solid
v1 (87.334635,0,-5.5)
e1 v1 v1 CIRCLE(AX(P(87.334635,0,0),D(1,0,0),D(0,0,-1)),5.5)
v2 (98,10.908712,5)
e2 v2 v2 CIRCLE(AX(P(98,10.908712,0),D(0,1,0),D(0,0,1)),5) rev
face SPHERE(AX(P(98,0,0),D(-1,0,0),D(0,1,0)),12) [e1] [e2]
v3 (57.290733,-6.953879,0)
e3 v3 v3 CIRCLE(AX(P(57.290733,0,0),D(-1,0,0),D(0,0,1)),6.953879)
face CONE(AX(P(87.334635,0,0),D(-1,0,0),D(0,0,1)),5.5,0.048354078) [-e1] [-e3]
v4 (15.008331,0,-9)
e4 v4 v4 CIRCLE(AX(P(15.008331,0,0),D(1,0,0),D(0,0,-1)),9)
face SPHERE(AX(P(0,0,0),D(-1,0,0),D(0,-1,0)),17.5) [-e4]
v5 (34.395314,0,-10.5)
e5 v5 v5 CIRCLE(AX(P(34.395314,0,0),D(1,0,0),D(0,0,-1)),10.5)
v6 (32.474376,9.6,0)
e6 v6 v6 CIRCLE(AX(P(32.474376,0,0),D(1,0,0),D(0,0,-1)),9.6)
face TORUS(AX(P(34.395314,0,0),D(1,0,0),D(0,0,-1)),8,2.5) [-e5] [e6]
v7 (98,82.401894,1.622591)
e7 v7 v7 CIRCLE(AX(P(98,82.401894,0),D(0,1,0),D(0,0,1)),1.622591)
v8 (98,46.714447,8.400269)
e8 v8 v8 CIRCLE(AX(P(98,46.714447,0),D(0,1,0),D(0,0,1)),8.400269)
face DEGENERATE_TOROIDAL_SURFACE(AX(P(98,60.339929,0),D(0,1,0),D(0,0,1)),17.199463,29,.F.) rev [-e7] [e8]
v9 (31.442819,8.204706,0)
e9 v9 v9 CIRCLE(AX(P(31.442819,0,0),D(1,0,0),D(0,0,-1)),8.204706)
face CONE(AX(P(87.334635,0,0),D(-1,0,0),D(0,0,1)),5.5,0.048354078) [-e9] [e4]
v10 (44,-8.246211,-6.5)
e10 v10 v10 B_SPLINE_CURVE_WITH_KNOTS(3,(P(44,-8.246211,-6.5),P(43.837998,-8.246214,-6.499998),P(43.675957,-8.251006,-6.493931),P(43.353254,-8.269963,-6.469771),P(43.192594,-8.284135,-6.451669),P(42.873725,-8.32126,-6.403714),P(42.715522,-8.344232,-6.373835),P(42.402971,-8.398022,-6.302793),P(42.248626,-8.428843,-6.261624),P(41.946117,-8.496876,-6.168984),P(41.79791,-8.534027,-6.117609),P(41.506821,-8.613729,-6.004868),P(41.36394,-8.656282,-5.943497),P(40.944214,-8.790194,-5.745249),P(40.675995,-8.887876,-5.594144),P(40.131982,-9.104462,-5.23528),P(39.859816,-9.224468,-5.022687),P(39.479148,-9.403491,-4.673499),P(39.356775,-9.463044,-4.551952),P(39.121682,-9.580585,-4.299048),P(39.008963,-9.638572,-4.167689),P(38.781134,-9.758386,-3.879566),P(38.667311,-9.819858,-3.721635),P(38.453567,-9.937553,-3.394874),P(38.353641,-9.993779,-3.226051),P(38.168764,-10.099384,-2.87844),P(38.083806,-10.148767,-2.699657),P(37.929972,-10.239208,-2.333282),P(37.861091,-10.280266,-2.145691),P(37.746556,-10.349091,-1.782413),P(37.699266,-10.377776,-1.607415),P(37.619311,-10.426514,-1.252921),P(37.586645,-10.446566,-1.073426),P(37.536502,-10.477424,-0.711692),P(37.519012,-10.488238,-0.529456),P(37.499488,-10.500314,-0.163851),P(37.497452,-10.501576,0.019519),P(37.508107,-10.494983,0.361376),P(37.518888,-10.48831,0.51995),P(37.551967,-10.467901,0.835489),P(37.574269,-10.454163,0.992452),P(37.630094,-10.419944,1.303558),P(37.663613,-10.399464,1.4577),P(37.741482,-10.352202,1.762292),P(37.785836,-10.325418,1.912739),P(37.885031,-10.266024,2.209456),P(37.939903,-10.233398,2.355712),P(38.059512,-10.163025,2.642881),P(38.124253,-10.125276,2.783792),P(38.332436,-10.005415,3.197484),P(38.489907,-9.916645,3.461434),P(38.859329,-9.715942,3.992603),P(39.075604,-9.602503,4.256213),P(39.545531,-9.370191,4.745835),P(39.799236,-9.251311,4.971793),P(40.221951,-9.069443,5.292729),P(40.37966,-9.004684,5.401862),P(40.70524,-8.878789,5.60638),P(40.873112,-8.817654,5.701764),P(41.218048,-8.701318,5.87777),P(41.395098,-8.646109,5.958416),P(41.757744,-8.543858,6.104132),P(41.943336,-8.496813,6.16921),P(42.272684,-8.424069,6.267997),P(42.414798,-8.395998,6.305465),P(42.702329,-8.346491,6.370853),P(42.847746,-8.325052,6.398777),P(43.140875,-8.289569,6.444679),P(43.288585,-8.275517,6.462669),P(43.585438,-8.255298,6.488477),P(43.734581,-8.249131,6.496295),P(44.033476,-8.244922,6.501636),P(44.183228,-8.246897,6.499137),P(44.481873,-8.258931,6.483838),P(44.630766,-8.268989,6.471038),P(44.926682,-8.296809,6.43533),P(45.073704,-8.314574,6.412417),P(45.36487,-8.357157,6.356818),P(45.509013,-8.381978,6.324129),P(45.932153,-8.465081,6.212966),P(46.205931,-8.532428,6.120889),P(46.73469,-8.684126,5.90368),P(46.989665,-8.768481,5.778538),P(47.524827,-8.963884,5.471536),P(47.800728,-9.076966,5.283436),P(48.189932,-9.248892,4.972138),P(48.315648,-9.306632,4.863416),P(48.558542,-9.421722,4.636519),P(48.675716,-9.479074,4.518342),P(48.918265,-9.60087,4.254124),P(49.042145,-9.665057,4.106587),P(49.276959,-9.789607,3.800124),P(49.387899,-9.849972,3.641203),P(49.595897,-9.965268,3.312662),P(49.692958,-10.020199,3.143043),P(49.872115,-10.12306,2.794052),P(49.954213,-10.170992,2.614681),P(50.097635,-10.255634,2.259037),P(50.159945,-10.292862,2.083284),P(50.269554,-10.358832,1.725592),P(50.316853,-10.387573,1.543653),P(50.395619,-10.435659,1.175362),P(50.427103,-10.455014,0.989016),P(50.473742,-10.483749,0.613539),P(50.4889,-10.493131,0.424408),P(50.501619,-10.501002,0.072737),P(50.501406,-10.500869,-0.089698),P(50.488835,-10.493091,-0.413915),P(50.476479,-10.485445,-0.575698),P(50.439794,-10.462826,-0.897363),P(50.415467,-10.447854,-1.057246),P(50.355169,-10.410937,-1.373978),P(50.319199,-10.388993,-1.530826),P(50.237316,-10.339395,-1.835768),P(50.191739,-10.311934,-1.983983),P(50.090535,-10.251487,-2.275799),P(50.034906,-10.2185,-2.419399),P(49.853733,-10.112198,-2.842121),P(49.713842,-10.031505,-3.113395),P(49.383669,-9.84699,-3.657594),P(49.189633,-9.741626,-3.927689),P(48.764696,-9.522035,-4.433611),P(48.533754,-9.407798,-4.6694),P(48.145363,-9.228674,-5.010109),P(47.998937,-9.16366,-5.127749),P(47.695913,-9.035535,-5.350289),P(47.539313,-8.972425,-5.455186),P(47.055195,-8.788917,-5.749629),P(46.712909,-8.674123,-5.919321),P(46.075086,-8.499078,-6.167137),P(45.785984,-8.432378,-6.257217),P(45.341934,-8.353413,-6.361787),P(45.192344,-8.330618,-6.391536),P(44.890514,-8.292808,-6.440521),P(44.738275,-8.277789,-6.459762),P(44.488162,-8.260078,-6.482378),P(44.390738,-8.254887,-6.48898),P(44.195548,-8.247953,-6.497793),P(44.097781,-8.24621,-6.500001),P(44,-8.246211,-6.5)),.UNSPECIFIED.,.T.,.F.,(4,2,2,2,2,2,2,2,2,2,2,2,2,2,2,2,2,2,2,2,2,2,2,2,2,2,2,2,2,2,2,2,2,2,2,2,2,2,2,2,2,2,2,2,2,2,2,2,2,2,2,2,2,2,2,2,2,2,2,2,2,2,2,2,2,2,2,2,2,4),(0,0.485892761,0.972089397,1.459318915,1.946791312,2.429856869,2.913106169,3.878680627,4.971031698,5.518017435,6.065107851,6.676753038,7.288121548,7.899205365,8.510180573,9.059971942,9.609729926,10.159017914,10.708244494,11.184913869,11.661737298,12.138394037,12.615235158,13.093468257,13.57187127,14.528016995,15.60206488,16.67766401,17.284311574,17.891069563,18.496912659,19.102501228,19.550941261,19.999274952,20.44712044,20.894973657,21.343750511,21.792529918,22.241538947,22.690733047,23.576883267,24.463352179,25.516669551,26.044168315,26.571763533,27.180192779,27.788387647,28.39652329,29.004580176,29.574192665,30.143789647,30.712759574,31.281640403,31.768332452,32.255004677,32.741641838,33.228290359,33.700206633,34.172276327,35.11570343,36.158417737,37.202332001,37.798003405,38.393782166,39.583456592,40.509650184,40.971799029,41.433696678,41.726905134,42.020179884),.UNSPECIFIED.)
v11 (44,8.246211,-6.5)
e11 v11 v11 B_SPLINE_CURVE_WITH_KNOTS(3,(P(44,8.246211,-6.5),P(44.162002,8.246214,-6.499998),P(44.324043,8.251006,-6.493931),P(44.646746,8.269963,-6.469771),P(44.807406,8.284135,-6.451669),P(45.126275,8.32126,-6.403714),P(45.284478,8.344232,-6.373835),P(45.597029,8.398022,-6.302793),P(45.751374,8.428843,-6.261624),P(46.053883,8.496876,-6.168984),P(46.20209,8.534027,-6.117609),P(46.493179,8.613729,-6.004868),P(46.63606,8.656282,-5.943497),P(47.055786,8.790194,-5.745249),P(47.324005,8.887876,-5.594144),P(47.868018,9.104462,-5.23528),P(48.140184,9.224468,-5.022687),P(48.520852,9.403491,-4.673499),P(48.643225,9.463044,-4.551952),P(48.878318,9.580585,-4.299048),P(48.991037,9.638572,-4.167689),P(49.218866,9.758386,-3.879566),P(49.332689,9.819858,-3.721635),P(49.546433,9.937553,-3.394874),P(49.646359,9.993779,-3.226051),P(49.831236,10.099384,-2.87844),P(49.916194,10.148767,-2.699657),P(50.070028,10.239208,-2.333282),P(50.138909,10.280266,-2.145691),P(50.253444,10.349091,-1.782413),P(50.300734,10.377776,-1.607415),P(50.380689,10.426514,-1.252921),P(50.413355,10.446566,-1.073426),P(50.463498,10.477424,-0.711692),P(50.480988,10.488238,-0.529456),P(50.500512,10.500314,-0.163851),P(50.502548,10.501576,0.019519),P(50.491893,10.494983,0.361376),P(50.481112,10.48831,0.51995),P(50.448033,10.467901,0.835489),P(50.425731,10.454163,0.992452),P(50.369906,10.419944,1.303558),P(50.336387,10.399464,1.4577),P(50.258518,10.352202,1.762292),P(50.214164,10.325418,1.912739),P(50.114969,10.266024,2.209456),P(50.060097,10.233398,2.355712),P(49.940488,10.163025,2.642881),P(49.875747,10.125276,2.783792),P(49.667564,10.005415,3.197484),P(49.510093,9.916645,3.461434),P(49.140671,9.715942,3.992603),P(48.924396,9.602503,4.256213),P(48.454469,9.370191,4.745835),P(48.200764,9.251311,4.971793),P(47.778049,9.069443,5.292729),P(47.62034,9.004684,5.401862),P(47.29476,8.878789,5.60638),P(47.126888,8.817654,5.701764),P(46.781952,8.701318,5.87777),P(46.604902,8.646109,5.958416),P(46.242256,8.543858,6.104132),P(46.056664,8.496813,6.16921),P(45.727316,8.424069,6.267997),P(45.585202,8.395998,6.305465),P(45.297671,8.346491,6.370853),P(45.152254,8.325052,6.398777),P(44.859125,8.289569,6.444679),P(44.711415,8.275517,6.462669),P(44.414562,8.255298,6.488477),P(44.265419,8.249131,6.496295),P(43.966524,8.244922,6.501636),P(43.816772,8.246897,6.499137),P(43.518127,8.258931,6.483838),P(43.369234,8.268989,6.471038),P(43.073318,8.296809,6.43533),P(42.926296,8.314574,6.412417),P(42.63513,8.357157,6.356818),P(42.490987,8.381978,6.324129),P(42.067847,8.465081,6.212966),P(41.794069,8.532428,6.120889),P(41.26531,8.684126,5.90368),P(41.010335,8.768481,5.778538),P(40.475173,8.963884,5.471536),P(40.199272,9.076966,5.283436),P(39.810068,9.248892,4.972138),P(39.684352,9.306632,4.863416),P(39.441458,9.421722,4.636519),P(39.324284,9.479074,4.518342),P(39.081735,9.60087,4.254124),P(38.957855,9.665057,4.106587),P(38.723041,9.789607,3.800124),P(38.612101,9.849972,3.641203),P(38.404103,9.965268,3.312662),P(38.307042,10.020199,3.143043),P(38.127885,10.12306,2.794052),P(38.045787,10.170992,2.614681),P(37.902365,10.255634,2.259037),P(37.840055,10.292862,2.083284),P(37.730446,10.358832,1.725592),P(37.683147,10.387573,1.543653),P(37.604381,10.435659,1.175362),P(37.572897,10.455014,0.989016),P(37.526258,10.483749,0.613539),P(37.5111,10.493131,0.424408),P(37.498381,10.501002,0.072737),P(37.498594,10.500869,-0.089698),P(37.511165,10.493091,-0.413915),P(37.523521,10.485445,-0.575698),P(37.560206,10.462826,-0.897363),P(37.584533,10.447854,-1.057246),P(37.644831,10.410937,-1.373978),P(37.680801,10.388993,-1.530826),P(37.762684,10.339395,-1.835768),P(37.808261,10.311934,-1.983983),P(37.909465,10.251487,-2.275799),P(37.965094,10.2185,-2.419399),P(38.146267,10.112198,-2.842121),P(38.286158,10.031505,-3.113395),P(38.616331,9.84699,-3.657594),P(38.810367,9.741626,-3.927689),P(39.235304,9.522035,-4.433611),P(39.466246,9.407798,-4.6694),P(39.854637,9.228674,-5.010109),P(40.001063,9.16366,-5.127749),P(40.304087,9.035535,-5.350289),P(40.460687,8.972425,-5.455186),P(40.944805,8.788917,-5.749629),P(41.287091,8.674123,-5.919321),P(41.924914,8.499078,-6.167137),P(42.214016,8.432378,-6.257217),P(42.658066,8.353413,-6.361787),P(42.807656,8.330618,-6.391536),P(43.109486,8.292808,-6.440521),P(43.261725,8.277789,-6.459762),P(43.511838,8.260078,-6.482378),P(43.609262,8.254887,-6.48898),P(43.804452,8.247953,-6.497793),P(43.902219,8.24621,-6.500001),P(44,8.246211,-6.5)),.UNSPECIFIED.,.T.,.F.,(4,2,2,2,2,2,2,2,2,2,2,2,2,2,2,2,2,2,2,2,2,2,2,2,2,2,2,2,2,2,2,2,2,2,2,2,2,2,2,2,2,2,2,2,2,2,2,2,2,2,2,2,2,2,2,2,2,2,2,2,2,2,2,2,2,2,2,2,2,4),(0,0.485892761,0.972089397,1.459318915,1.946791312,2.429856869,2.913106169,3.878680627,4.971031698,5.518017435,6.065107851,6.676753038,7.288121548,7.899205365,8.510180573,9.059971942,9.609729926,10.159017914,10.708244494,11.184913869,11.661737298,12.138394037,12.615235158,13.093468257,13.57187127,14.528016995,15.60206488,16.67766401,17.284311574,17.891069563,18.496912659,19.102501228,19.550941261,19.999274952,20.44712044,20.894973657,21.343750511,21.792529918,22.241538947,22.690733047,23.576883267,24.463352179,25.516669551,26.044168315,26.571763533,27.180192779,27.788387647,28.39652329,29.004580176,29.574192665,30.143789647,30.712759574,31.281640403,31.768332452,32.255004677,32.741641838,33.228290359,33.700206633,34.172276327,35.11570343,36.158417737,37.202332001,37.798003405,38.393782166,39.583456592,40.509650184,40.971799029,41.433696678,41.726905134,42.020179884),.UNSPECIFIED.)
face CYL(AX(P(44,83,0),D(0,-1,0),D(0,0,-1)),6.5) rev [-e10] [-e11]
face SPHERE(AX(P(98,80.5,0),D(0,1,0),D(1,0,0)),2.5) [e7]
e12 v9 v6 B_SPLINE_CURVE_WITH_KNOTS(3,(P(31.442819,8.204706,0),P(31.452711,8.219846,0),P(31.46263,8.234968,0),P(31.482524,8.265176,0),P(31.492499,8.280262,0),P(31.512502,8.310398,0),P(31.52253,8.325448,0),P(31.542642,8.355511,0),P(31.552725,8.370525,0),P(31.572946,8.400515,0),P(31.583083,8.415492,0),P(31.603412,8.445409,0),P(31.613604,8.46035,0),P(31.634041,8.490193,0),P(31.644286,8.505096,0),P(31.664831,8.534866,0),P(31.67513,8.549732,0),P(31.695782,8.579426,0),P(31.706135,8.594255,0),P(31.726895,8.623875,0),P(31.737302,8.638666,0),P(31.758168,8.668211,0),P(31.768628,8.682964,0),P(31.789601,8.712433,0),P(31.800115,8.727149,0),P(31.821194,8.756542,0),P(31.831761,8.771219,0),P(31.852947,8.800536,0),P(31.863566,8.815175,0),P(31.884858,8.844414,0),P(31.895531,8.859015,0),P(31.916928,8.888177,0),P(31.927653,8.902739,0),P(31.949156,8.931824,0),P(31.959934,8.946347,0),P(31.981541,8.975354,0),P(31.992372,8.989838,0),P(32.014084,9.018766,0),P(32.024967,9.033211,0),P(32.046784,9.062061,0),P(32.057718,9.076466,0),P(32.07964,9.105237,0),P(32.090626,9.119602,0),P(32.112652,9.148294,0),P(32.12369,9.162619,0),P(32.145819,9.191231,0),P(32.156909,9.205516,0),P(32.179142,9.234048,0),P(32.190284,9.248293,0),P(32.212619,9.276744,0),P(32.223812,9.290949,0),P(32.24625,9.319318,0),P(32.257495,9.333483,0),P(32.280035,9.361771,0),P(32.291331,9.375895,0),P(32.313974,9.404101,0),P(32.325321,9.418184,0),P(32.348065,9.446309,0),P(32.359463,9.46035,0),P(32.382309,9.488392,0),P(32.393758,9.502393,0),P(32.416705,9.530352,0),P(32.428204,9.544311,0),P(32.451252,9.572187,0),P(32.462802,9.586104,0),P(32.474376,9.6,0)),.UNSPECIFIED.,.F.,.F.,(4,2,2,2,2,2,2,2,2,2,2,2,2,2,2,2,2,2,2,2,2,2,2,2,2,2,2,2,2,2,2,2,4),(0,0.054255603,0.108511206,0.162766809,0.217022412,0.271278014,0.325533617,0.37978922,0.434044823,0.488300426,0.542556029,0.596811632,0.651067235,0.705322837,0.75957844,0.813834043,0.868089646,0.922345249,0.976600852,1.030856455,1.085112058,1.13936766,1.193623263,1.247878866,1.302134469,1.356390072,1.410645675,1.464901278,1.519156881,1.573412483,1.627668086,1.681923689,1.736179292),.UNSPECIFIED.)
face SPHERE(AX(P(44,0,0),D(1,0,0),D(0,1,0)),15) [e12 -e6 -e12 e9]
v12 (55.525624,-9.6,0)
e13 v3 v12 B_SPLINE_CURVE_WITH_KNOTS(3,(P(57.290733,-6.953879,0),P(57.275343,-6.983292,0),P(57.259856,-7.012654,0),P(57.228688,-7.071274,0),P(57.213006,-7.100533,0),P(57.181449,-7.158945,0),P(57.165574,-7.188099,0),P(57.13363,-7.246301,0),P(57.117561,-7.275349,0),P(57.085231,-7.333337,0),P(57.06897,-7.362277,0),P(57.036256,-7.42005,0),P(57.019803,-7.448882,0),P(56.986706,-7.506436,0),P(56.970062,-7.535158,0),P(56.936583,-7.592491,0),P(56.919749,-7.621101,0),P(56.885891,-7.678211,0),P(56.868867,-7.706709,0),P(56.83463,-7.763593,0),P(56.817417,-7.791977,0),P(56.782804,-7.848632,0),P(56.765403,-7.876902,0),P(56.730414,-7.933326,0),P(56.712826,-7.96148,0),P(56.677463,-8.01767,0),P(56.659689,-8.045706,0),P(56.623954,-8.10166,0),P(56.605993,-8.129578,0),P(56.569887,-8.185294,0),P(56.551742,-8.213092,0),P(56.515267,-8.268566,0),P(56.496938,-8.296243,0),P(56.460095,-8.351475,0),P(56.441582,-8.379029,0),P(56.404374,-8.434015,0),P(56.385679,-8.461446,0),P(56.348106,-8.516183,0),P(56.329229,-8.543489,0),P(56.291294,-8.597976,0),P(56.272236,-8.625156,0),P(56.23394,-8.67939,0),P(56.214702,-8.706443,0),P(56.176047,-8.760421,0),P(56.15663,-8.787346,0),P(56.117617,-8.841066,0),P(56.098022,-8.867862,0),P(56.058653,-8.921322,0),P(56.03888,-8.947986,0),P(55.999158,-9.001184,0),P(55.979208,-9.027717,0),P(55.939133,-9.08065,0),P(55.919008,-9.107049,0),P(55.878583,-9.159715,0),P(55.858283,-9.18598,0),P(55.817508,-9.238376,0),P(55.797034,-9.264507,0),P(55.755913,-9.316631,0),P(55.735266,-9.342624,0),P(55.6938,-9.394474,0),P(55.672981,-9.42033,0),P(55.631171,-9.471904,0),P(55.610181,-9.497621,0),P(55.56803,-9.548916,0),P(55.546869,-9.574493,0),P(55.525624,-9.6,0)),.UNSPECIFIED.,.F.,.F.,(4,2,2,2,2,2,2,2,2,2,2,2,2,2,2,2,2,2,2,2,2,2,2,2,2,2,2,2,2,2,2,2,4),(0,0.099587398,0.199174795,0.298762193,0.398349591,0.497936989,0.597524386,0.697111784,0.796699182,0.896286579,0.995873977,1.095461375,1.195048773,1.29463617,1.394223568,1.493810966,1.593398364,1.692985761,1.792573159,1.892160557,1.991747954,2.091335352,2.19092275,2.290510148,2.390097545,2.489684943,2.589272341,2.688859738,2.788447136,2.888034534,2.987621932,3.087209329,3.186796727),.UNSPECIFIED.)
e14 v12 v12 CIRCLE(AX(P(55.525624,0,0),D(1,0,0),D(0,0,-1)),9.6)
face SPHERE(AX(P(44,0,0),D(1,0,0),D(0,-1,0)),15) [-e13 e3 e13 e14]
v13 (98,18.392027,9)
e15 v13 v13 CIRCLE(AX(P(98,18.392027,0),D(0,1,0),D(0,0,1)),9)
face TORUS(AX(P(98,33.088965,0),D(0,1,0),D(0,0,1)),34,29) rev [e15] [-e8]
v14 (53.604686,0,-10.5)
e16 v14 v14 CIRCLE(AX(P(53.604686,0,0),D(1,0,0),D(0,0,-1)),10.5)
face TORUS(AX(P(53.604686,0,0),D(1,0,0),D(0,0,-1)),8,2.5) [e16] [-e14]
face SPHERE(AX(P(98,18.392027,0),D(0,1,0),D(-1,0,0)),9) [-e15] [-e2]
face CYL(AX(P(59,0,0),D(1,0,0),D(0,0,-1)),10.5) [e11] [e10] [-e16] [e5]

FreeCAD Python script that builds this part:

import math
import FreeCAD as App
import Part
import Sketcher
from FreeCAD import Vector
Q = App.Units.Quantity

doc = App.newDocument("Part")
body = doc.addObject("PartDesign::Body", "Body")

sketch1 = body.newObject("Sketcher::SketchObject", "Sketch")
sketch1.AttachmentSupport = (doc.getObject("XY_Plane"), [""])
sketch1.MapMode = "FlatFace"
sketch1.addGeometry([
    Part.LineSegment(Vector(-17.5, 0, 0), Vector(17.5, 0, 0)),
    Part.ArcOfCircle(Part.Circle(Vector(0, 0, 0), Vector(0, 0, 1), 17.5), math.radians(0), math.radians(180)),
], False)
sketch1.addConstraint([
    Sketcher.Constraint("Coincident", 0, 1, 1, 2),
    Sketcher.Constraint("Coincident", 1, 1, 0, 2),
    Sketcher.Constraint("Horizontal", 0),
    Sketcher.Constraint("Coincident", 1, 3, -1, 1),
    Sketcher.Constraint("PointOnObject", 0, 1, -1),
    Sketcher.Constraint("Radius", 1, Q("17.5 mm")),
])
revolution = body.newObject("PartDesign::Revolution", "Revolution")
revolution.Profile = sketch1
revolution.ReferenceAxis = (sketch1, ["H_Axis"])
revolution.Angle = 360
body2 = doc.addObject("PartDesign::Body", "Body001")

sketch2 = body2.newObject("Sketcher::SketchObject", "Sketch001")
sketch2.AttachmentSupport = (doc.getObject("XY_Plane001"), [""])
sketch2.MapMode = "FlatFace"
sketch2.addGeometry([
    Part.LineSegment(Vector(53.604686, 10.5, 0), Vector(34.395314, 10.5, 0)),
    Part.ArcOfCircle(Part.Circle(Vector(34.395314, 8, 0), Vector(0, 0, 1), 2.5), math.radians(90), math.radians(140.208181)),
    Part.ArcOfCircle(Part.Circle(Vector(44, 0, 0), Vector(0, 0, 1), 15), math.radians(140.20818), math.radians(180)),
    Part.LineSegment(Vector(29, 0, 0), Vector(59, 0, 0)),
    Part.ArcOfCircle(Part.Circle(Vector(44, 0, 0), Vector(0, 0, 1), 15), math.radians(0), math.radians(39.79182)),
    Part.ArcOfCircle(Part.Circle(Vector(53.604686, 8, 0), Vector(0, 0, 1), 2.5), math.radians(39.791819), math.radians(90)),
], False)
sketch2.addConstraint([
    Sketcher.Constraint("Tangent", 0, 2, 1, 1),
    Sketcher.Constraint("Tangent", 1, 2, 2, 1),
    Sketcher.Constraint("Coincident", 2, 2, 3, 1),
    Sketcher.Constraint("Coincident", 3, 2, 4, 1),
    Sketcher.Constraint("Tangent", 4, 2, 5, 1),
    Sketcher.Constraint("Tangent", 5, 2, 0, 1),
    Sketcher.Constraint("Horizontal", 0),
    Sketcher.Constraint("Horizontal", 3),
    Sketcher.Constraint("Coincident", 4, 3, 2, 3),
    Sketcher.Constraint("Equal", 2, 4),
    Sketcher.Constraint("Equal", 1, 5),
    Sketcher.Constraint("PointOnObject", 2, 3, -1),
    Sketcher.Constraint("PointOnObject", 2, 2, -1),
    Sketcher.Constraint("Radius", 2, Q("15 mm")),
    Sketcher.Constraint("Radius", 1, Q("2.5 mm")),
    Sketcher.Constraint("DistanceY", -1, 1, 1, 3, Q("8 mm")),
    Sketcher.Constraint("DistanceX", -1, 1, 2, 3, Q("44 mm")),
])
revolution2 = body2.newObject("PartDesign::Revolution", "Revolution001")
revolution2.Profile = sketch2
revolution2.ReferenceAxis = (sketch2, ["H_Axis"])
revolution2.Angle = 360
body3 = doc.addObject("PartDesign::Body", "Body002")

sketch3 = body3.newObject("Sketcher::SketchObject", "Sketch002")
sketch3.AttachmentSupport = (doc.getObject("XY_Plane002"), [""])
sketch3.MapMode = "FlatFace"
sketch3.addGeometry([
    Part.LineSegment(Vector(86, 0, 0), Vector(110, 0, 0)),
    Part.ArcOfCircle(Part.Circle(Vector(98, 0, 0), Vector(0, 0, 1), 12), math.radians(0), math.radians(180)),
], False)
sketch3.addConstraint([
    Sketcher.Constraint("Coincident", 0, 1, 1, 2),
    Sketcher.Constraint("Coincident", 1, 1, 0, 2),
    Sketcher.Constraint("Horizontal", 0),
    Sketcher.Constraint("PointOnObject", 1, 3, -1),
    Sketcher.Constraint("PointOnObject", 0, 1, -1),
    Sketcher.Constraint("Radius", 1, Q("12 mm")),
    Sketcher.Constraint("DistanceX", -1, 1, 1, 3, Q("98 mm")),
])
revolution3 = body3.newObject("PartDesign::Revolution", "Revolution002")
revolution3.Profile = sketch3
revolution3.ReferenceAxis = (sketch3, ["H_Axis"])
revolution3.Angle = 360
body.AllowCompound = True
doc.recompute()

boolean = body.newObject("PartDesign::Boolean", "Boolean")
boolean.Type = "Fuse"
boolean.addObjects([body2])
doc.recompute()

boolean2 = body.newObject("PartDesign::Boolean", "Boolean001")
boolean2.Type = "Fuse"
boolean2.addObjects([body3])

sketch4 = body.newObject("Sketcher::SketchObject", "Sketch003")
sketch4.AttachmentSupport = (doc.getObject("XY_Plane"), [""])
sketch4.MapMode = "FlatFace"
sketch4.addGeometry([
    Part.LineSegment(Vector(87.334635, 5.5, 0), Vector(15.008331, 9, 0)),
    Part.ArcOfCircle(Part.Circle(Vector(0, 0, 0), Vector(0, 0, 1), 17.5), math.radians(0), math.radians(30.949723)),
    Part.LineSegment(Vector(17.5, 0, 0), Vector(86, 0, 0)),
    Part.ArcOfCircle(Part.Circle(Vector(98, 0, 0), Vector(0, 0, 1), 12), math.radians(152.720387), math.radians(180)),
], False)
sketch4.addConstraint([
    Sketcher.Constraint("Coincident", 0, 2, 1, 2),
    Sketcher.Constraint("Coincident", 1, 1, 2, 1),
    Sketcher.Constraint("Coincident", 2, 2, 3, 2),
    Sketcher.Constraint("Coincident", 3, 1, 0, 1),
    Sketcher.Constraint("Horizontal", 2),
    Sketcher.Constraint("Coincident", 1, 3, -1, 1),
    Sketcher.Constraint("PointOnObject", 3, 3, -1),
    Sketcher.Constraint("PointOnObject", 1, 1, -1),
    Sketcher.Constraint("Radius", 3, Q("12 mm")),
    Sketcher.Constraint("Radius", 1, Q("17.5 mm")),
    Sketcher.Constraint("DistanceX", 2, 1, 2, 2, Q("68.5 mm")),
    Sketcher.Constraint("DistanceY", -1, 1, 0, 2, Q("9 mm")),
    Sketcher.Constraint("DistanceY", -1, 1, 3, 1, Q("5.5 mm")),
])
revolution4 = body.newObject("PartDesign::Revolution", "Revolution003")
revolution4.Profile = sketch4
revolution4.ReferenceAxis = (sketch4, ["H_Axis"])
revolution4.Angle = 360

sketch5 = body.newObject("Sketcher::SketchObject", "Sketch004")
sketch5.AttachmentSupport = (doc.getObject("XY_Plane"), [""])
sketch5.MapMode = "FlatFace"
sketch5.addGeometry([
    Part.LineSegment(Vector(98, 9.392027, 0), Vector(98, 83, 0)),
    Part.ArcOfCircle(Part.Circle(Vector(98, 80.5, 0), Vector(0, 0, 1), 2.5), math.radians(90), math.radians(130.468985)),
    Part.ArcOfCircle(Part.Circle(Vector(115.199463, 60.339929, 0), Vector(0, 0, 1), 29), math.radians(130.468985), math.radians(208.024183)),
    Part.ArcOfCircle(Part.Circle(Vector(64, 33.088965, 0), Vector(0, 0, 1), 29), math.radians(-30.450314), math.radians(28.024183)),
    Part.ArcOfCircle(Part.Circle(Vector(98, 18.392027, 0), Vector(0, 0, 1), 9), math.radians(-180), math.radians(-90)),
], False)
sketch5.addGeometry(Part.LineSegment(Vector(98, 83, 0), Vector(98, 9.392027, 0)), True)
sketch5.addConstraint([
    Sketcher.Constraint("Coincident", 0, 2, 1, 1),
    Sketcher.Constraint("Tangent", 1, 2, 2, 1),
    Sketcher.Constraint("Tangent", 2, 2, 3, 2),
    Sketcher.Constraint("Coincident", 3, 1, 4, 1),
    Sketcher.Constraint("Coincident", 4, 2, 0, 1),
    Sketcher.Constraint("Vertical", 0),
    Sketcher.Constraint("Vertical", 5),
    Sketcher.Constraint("Coincident", 5, 1, 0, 2),
    Sketcher.Constraint("Equal", 2, 3),
    Sketcher.Constraint("Horizontal", 4, 3, 3, 1),
    Sketcher.Constraint("Vertical", 1, 3, 4, 3),
    Sketcher.Constraint("Vertical", 4, 3, 0, 2),
    Sketcher.Constraint("Equal", 0, 5),
    Sketcher.Constraint("Radius", 2, Q("29 mm")),
    Sketcher.Constraint("Radius", 4, Q("9 mm")),
    Sketcher.Constraint("Radius", 1, Q("2.5 mm")),
    Sketcher.Constraint("DistanceX", -1, 1, 1, 3, Q("98 mm")),
    Sketcher.Constraint("DistanceX", -1, 1, 3, 3, Q("64 mm")),
    Sketcher.Constraint("DistanceY", -1, 1, 0, 2, Q("83 mm")),
    Sketcher.Constraint("DistanceY", 4, 3, 2, 3, Q("41.947902 mm")),
])
revolution5 = body.newObject("PartDesign::Revolution", "Revolution004")
revolution5.Profile = sketch5
revolution5.ReferenceAxis = (sketch5, ["Axis0"])
revolution5.Angle = 360

sketch6 = body.newObject("Sketcher::SketchObject", "Sketch005")
sketch6.AttachmentSupport = (doc.getObject("XZ_Plane"), [""])
sketch6.MapMode = "FlatFace"
sketch6.addGeometry(Part.Circle(Vector(44, 0, 0), Vector(0, 0, 1), 6.5), False)
sketch6.addConstraint([
    Sketcher.Constraint("PointOnObject", 0, 3, -1),
    Sketcher.Constraint("Diameter", 0, Q("13 mm")),
    Sketcher.Constraint("DistanceX", -1, 1, 0, 3, Q("44 mm")),
])
pocket1 = body.newObject("PartDesign::Pocket", "Pocket")
pocket1.Profile = sketch6
pocket1.Type = "ThroughAll"
pocket1.Midplane = True

doc.recompute()
